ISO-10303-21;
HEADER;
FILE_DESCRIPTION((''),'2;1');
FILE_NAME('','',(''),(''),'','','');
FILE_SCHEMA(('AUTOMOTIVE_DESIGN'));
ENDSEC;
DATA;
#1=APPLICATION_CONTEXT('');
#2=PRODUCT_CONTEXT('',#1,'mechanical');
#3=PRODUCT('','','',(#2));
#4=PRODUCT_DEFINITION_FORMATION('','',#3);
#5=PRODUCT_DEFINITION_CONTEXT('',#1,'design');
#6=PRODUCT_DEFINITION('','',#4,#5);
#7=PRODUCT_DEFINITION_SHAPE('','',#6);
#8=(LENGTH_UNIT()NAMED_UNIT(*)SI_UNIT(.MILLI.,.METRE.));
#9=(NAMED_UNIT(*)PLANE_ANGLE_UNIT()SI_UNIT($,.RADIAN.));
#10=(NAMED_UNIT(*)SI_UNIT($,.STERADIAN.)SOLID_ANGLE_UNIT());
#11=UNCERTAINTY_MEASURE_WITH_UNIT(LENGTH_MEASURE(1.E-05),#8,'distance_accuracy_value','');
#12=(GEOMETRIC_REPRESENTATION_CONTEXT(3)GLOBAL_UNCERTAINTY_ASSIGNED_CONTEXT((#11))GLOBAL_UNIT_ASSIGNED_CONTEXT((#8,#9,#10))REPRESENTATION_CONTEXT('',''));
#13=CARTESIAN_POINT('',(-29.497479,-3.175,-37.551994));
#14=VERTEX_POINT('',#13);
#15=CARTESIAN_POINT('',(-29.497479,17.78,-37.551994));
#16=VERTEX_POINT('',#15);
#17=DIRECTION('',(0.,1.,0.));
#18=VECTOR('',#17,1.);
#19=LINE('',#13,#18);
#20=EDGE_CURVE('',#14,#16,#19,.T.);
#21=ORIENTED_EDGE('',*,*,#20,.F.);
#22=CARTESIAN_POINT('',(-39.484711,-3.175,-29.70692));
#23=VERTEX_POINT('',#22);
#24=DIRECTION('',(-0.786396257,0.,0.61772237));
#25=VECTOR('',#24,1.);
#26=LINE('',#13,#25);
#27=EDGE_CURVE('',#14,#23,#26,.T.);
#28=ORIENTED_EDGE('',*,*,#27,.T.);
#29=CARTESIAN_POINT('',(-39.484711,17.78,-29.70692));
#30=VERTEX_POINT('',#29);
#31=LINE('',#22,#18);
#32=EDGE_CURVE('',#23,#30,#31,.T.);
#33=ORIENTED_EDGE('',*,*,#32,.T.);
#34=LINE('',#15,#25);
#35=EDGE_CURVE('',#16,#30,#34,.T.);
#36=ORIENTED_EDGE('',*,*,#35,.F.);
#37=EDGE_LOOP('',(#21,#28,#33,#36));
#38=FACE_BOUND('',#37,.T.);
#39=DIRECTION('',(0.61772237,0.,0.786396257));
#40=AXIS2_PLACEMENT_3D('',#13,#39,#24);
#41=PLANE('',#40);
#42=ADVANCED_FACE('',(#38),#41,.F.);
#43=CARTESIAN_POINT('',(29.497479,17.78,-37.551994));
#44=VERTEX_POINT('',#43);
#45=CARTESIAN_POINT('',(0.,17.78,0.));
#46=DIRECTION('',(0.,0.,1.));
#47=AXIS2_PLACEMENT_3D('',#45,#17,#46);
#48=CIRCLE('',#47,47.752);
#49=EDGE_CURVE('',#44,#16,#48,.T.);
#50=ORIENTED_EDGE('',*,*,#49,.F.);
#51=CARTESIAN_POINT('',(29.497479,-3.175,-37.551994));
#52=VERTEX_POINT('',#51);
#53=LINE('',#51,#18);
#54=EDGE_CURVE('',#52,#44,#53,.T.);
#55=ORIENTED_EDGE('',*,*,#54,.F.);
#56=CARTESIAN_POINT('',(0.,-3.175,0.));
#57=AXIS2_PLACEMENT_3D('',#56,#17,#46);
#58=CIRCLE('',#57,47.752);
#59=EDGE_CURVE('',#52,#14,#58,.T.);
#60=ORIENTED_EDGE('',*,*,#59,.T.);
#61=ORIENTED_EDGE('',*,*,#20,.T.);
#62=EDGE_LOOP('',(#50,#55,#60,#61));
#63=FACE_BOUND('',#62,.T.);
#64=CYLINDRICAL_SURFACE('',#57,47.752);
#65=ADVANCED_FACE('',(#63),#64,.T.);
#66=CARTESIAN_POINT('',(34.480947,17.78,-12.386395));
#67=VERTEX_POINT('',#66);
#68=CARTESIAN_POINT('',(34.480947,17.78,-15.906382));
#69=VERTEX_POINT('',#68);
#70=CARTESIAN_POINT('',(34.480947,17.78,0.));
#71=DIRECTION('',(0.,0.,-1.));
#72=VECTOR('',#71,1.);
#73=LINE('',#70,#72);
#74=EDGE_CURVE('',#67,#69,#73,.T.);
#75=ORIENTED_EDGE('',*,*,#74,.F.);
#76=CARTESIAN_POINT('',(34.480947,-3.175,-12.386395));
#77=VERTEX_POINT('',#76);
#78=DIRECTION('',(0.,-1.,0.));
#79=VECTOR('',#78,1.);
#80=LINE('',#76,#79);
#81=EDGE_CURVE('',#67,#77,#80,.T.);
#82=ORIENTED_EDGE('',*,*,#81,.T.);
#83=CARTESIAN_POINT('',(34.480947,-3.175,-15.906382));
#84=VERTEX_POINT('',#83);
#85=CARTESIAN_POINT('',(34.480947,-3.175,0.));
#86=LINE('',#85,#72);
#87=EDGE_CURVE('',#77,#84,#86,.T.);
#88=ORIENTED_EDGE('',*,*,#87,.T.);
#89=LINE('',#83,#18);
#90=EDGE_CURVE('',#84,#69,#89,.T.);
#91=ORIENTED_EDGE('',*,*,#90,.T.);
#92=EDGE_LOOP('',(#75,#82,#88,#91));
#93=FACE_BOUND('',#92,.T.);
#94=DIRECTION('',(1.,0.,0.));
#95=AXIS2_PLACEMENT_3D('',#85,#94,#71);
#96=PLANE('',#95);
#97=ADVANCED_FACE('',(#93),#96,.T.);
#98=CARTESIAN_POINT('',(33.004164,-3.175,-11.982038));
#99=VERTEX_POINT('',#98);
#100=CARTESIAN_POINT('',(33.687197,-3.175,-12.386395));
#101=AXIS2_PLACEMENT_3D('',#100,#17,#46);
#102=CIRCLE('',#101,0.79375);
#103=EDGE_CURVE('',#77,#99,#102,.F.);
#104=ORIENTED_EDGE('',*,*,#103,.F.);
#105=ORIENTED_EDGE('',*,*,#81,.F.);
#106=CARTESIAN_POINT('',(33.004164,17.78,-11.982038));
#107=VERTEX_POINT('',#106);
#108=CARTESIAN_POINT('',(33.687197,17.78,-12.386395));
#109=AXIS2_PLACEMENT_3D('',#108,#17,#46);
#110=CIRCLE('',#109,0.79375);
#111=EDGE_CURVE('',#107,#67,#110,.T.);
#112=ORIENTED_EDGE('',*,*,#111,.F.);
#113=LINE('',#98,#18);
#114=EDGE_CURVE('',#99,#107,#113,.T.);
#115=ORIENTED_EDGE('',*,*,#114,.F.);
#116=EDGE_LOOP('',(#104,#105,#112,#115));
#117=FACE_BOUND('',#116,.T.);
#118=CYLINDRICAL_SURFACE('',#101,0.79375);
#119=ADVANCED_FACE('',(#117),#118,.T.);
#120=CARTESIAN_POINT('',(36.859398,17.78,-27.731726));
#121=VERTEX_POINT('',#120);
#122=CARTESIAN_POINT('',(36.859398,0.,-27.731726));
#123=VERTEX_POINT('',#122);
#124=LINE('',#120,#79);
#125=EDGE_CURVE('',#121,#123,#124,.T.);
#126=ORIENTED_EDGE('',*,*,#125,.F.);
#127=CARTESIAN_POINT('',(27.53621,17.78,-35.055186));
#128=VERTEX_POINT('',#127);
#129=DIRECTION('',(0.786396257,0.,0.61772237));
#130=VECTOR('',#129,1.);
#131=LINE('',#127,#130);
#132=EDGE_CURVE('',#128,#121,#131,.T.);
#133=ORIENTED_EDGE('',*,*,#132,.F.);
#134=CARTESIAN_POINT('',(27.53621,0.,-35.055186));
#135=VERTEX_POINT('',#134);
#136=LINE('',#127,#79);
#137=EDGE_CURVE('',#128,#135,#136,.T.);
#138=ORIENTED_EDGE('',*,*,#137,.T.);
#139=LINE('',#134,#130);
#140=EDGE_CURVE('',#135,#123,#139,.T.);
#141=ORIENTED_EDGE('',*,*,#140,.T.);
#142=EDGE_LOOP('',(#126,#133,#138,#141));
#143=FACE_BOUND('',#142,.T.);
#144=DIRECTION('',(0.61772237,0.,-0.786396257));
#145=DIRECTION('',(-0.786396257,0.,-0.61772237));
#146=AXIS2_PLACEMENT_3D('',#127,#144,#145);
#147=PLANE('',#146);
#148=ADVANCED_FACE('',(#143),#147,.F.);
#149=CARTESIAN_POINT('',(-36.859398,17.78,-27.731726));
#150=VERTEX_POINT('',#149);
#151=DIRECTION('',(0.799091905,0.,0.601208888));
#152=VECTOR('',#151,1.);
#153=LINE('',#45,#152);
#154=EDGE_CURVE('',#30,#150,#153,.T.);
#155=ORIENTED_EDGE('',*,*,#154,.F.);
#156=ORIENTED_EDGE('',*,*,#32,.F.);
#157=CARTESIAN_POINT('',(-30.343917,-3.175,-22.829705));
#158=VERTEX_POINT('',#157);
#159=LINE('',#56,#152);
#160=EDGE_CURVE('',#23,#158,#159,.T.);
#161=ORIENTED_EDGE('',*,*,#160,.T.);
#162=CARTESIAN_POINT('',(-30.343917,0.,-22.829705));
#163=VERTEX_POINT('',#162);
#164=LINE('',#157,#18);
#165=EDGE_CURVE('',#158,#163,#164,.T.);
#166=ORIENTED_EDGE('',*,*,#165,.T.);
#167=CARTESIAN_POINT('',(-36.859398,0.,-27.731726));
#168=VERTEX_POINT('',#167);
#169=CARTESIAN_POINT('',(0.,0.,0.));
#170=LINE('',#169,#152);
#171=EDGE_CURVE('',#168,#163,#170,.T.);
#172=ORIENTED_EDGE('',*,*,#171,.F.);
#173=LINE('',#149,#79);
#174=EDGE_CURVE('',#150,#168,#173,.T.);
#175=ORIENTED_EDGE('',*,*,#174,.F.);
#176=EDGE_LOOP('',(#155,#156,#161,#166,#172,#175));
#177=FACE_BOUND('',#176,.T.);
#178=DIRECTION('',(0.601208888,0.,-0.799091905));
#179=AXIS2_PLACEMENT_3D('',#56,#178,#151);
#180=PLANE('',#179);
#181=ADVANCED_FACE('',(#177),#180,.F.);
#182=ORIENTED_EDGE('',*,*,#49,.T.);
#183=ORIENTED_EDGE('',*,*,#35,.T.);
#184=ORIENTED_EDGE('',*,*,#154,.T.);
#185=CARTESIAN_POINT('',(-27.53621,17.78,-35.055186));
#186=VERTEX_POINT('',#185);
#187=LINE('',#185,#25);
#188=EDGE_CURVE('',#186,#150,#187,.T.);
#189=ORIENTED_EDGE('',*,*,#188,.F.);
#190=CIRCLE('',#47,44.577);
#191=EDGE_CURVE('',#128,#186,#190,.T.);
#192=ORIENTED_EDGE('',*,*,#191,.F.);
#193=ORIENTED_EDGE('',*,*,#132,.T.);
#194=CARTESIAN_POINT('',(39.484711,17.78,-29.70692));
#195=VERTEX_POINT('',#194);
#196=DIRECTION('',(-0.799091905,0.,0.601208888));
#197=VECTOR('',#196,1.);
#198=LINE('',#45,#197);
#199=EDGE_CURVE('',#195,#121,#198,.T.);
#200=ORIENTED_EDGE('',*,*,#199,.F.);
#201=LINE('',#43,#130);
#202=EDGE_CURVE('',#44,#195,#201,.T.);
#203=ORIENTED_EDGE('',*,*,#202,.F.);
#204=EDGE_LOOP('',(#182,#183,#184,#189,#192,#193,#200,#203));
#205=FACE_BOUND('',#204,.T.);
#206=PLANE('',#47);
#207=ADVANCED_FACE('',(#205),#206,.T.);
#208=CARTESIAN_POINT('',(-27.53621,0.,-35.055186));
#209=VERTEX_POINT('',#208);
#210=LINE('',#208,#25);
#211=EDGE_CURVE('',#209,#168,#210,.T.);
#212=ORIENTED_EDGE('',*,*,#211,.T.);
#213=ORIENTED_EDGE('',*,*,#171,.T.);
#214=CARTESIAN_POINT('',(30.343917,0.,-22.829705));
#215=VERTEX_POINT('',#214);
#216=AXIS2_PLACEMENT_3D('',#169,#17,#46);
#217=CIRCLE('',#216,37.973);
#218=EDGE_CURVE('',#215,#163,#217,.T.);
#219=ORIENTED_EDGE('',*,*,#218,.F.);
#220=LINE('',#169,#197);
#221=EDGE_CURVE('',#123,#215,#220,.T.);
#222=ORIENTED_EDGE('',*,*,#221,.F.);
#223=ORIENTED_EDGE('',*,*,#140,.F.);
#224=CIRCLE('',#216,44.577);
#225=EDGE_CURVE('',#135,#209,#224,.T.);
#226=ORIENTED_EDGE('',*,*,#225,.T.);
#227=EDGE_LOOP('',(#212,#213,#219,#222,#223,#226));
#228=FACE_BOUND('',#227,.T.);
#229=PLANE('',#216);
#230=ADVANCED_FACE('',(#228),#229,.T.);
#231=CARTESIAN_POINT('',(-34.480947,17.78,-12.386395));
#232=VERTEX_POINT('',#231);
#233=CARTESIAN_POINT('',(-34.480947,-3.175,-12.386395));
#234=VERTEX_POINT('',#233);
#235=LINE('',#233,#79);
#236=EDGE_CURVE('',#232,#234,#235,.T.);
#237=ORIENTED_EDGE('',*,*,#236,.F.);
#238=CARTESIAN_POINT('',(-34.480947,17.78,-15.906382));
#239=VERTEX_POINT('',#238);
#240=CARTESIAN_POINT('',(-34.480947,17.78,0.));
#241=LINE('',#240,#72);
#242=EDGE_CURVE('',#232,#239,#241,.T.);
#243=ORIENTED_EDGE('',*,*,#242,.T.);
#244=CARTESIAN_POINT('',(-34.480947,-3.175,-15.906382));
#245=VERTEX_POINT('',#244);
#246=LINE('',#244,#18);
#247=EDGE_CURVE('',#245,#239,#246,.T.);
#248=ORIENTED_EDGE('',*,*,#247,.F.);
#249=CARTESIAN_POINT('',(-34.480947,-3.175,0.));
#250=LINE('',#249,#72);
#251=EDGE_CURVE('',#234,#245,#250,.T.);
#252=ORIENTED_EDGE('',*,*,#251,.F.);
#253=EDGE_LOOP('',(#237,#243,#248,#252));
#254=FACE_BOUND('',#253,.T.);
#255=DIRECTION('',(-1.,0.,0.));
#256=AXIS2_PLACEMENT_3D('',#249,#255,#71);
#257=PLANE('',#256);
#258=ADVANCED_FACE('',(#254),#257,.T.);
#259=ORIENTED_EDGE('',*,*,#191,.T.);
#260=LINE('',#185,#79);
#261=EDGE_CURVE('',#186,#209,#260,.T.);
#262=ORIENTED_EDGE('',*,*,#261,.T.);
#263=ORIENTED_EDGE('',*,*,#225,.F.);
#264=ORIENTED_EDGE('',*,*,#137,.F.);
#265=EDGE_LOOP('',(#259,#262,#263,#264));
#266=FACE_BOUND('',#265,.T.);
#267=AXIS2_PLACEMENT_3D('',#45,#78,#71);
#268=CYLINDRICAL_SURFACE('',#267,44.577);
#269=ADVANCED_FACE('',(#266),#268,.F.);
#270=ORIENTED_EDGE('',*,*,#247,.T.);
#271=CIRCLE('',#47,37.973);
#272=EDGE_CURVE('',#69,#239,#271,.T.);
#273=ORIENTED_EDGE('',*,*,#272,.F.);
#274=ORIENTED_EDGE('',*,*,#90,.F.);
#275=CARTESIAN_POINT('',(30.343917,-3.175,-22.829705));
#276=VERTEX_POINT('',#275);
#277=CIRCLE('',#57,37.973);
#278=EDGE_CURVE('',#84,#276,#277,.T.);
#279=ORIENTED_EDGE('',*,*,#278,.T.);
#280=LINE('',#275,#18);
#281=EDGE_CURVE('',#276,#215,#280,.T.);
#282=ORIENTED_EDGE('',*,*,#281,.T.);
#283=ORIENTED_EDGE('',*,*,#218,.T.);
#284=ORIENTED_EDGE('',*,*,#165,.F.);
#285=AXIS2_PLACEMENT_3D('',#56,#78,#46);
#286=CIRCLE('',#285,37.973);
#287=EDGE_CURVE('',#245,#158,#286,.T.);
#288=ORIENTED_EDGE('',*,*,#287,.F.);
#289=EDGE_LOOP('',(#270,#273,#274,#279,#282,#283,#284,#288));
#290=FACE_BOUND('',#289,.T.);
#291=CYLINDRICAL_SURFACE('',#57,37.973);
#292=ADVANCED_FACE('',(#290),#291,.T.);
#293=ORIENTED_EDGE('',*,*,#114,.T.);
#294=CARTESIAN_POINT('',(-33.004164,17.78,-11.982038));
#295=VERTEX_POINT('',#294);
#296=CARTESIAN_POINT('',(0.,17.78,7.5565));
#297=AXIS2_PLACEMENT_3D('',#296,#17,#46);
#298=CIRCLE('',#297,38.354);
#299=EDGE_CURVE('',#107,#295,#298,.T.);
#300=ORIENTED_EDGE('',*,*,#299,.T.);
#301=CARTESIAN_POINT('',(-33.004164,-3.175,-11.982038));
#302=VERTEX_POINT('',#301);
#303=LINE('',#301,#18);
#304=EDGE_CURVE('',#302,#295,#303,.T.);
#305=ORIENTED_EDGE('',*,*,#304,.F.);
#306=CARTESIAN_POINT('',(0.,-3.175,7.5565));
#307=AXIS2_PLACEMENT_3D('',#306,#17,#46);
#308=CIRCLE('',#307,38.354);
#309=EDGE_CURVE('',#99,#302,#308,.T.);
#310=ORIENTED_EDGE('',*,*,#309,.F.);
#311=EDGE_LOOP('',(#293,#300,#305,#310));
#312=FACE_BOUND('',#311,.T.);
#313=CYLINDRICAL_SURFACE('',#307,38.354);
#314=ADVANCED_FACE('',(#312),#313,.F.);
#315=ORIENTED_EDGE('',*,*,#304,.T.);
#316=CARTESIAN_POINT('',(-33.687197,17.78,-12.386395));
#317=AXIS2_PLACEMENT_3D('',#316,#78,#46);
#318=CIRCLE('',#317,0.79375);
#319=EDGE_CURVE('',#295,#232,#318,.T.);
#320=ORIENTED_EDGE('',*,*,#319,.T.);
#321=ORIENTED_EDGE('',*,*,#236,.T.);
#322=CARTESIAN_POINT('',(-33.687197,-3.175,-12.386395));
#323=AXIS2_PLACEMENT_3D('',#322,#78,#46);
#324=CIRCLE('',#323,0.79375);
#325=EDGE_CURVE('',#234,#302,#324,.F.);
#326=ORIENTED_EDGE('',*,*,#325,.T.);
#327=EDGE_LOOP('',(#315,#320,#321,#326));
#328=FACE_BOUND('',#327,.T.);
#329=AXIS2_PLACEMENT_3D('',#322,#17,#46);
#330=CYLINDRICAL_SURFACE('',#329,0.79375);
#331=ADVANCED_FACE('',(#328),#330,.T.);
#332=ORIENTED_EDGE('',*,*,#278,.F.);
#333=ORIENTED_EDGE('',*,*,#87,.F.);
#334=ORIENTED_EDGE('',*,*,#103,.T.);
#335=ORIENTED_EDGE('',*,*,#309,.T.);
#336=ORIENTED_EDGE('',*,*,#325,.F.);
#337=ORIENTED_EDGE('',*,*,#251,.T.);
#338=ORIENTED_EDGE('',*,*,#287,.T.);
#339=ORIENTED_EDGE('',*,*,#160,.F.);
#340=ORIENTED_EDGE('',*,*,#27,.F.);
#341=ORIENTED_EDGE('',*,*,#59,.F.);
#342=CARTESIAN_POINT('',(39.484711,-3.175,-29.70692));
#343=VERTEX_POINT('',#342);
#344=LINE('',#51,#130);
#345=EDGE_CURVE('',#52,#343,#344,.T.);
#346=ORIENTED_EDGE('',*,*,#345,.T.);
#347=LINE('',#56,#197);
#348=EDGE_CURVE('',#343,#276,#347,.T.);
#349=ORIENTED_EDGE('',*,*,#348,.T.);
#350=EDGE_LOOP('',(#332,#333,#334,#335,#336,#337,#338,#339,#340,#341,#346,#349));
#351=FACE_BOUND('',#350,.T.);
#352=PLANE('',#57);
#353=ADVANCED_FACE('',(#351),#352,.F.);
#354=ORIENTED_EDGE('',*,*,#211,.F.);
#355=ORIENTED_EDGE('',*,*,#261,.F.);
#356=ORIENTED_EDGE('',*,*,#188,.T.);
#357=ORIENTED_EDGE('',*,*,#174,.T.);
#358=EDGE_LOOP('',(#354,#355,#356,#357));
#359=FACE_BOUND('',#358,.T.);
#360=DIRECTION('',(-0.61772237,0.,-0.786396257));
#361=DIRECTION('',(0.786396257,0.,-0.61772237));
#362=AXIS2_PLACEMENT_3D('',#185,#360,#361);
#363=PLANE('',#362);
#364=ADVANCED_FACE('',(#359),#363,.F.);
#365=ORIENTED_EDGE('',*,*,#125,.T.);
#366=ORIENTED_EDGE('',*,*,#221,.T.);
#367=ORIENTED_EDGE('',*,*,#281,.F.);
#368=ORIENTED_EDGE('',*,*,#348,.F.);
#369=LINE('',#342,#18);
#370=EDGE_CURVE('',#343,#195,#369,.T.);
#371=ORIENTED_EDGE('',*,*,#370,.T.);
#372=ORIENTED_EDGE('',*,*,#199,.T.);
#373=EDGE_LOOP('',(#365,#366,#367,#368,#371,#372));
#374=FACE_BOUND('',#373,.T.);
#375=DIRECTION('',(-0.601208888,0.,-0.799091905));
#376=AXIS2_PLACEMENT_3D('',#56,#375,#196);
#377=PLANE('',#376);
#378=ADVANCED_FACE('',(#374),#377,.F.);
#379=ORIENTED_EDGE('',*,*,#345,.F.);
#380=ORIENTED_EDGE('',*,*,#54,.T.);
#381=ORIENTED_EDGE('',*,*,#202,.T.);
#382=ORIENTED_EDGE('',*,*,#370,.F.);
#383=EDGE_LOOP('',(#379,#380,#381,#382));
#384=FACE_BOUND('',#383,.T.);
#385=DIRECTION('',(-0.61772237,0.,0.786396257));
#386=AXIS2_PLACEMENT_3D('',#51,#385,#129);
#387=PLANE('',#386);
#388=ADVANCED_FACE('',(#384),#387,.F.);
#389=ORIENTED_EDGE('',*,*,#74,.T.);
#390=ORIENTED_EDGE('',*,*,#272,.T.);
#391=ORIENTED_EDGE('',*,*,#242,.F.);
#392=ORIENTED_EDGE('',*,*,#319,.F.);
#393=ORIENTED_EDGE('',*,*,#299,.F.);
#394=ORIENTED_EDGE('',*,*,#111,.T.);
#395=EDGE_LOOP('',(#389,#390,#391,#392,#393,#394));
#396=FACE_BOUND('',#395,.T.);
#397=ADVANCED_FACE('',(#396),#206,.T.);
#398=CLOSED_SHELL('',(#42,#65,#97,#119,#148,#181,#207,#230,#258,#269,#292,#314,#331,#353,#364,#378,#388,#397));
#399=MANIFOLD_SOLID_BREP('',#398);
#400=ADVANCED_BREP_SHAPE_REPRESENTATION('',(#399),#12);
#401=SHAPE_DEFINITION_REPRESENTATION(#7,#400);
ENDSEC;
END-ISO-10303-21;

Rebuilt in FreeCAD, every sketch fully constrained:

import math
import FreeCAD as App
import Part
import Sketcher
from FreeCAD import Vector
Q = App.Units.Quantity


def edges_at(feature, points):
    """Names of the edges that pass closest to the given points."""
    edges = feature.Shape.Edges
    near = lambda p: min(range(len(edges)), key=lambda i: edges[i].distToShape(Part.Vertex(*p))[0])
    return sorted({f"Edge{near(p) + 1}" for p in points})

doc = App.newDocument("Part")
body = doc.addObject("PartDesign::Body", "Body")

# Sketch on XZ plane
sketch1 = body.newObject("Sketcher::SketchObject", "Sketch")
sketch1.AttachmentSupport = (doc.getObject("XZ_Plane"), [""])
sketch1.MapMode = "FlatFace"
sketch1.addGeometry(Part.ArcOfCircle(Part.Circle(Vector(0, 8, 0), Vector(0, 0, 1), 38), math.radians(-90), math.radians(-26)), False)
sketch1.addGeometry(Part.LineSegment(Vector(34, -9, 0), Vector(34, -16, 0)), False)
sketch1.addGeometry(Part.ArcOfCircle(Part.Circle(Vector(0, 0, 0), Vector(0, 0, 1), 38), math.radians(-36.96), math.radians(-24.76)), False)
sketch1.addGeometry(Part.LineSegment(Vector(30, -23, 0), Vector(39, -30, 0)), False)
sketch1.addGeometry(Part.LineSegment(Vector(39, -30, 0), Vector(29, -38, 0)), False)
sketch1.addGeometry(Part.ArcOfCircle(Part.Circle(Vector(0, 0, 0), Vector(0, 0, 1), 48), math.radians(-90), math.radians(-52)), False)
sketch1.addGeometry(Part.LineSegment(Vector(0, -48, 0), Vector(0, -31, 0)), False)
sketch1.addConstraint(Sketcher.Constraint("Coincident", 0, 2, 1, 1))
sketch1.addConstraint(Sketcher.Constraint("Coincident", 1, 2, 2, 2))
sketch1.addConstraint(Sketcher.Constraint("Coincident", 2, 1, 3, 1))
sketch1.addConstraint(Sketcher.Constraint("Coincident", 3, 2, 4, 1))
sketch1.addConstraint(Sketcher.Constraint("Tangent", 4, 2, 5, 2))
sketch1.addConstraint(Sketcher.Constraint("Coincident", 5, 1, 6, 1))
sketch1.addConstraint(Sketcher.Constraint("Coincident", 6, 2, 0, 1))
sketch1.addConstraint(Sketcher.Constraint("Vertical", 1))
sketch1.addConstraint(Sketcher.Constraint("Vertical", 6))
sketch1.addConstraint(Sketcher.Constraint("Coincident", 2, 3, -1, 1))
sketch1.addConstraint(Sketcher.Constraint("Coincident", 5, 3, -1, 1))
sketch1.addConstraint(Sketcher.Constraint("PointOnObject", 0, 3, -2))
sketch1.addConstraint(Sketcher.Constraint("PointOnObject", 5, 1, -2))
sketch1.addConstraint(Sketcher.Constraint("Radius", 0, Q("1.51 in")))
sketch1.addConstraint(Sketcher.Constraint("Radius", 5, Q("1.88 in")))
sketch1.addConstraint(Sketcher.Constraint("Radius", 2, Q("1.495 in")))
sketch1.addConstraint(Sketcher.Constraint("Distance", 4, Q("0.5 in")))
sketch1.addConstraint(Sketcher.Constraint("Angle", 4, Q("-141.85 deg")))
sketch1.addConstraint(Sketcher.Constraint("DistanceY", 6, 1, 6, 2, Q("0.6675 in")))
sketch1.addConstraint(Sketcher.Constraint("DistanceY", 1, 2, 1, 1, Q("6.66724 mm")))
sketch1.addConstraint(Sketcher.Constraint("DistanceX", 2, 1, 1, 2, Q("4.13703 mm")))
pad1 = body.newObject("PartDesign::Pad", "Pad")
pad1.Profile = sketch1
pad1.Length = Q("0.125 in")

# Sketch on XZ plane
sketch2 = body.newObject("Sketcher::SketchObject", "Sketch001")
sketch2.AttachmentSupport = (doc.getObject("XZ_Plane"), [""])
sketch2.MapMode = "FlatFace"
sketch2.AttachmentOffset = App.Placement(Vector(0, 0, -0.7 * 25.4), App.Rotation())
sketch2.addGeometry(Part.LineSegment(Vector(0, -38, 0), Vector(0, -30.8, 0)), False)
sketch2.addGeometry(Part.ArcOfCircle(Part.Circle(Vector(0, 7.6, 0), Vector(0, 0, 1), 38.4), math.radians(-90), math.radians(-26)), False)
sketch2.addGeometry(Part.LineSegment(Vector(34.5, -9.2, 0), Vector(34.5, -15.9, 0)), False)
sketch2.addGeometry(Part.ArcOfCircle(Part.Circle(Vector(0, 0, 0), Vector(0, 0, 1), 38), math.radians(-90), math.radians(-25)), False)
sketch2.addGeometry(Part.LineSegment(Vector(0, -47.8, 0), Vector(0, -44.6, 0)), False)
sketch2.addGeometry(Part.ArcOfCircle(Part.Circle(Vector(0, 0, 0), Vector(0, 0, 1), 44.6), math.radians(-90), math.radians(-52)), False)
sketch2.addGeometry(Part.LineSegment(Vector(27.5, -35.1, 0), Vector(36.9, -27.7, 0)), False)
sketch2.addGeometry(Part.LineSegment(Vector(36.9, -27.7, 0), Vector(39.5, -29.7, 0)), False)
sketch2.addGeometry(Part.LineSegment(Vector(39.5, -29.7, 0), Vector(29.5, -37.6, 0)), False)
sketch2.addGeometry(Part.ArcOfCircle(Part.Circle(Vector(0, 0, 0), Vector(0, 0, 1), 47.8), math.radians(-90), math.radians(-52)), False)
sketch2.addConstraint(Sketcher.Constraint("Coincident", 0, 2, 1, 1))
sketch2.addConstraint(Sketcher.Constraint("Coincident", 1, 2, 2, 1))
sketch2.addConstraint(Sketcher.Constraint("Coincident", 2, 2, 3, 2))
sketch2.addConstraint(Sketcher.Constraint("Coincident", 3, 1, 0, 1))
sketch2.addConstraint(Sketcher.Constraint("Coincident", 4, 2, 5, 1))
sketch2.addConstraint(Sketcher.Constraint("Tangent", 5, 2, 6, 1))
sketch2.addConstraint(Sketcher.Constraint("Coincident", 6, 2, 7, 1))
sketch2.addConstraint(Sketcher.Constraint("Coincident", 7, 2, 8, 1))
sketch2.addConstraint(Sketcher.Constraint("Tangent", 8, 2, 9, 2))
sketch2.addConstraint(Sketcher.Constraint("Coincident", 9, 1, 4, 1))
sketch2.addConstraint(Sketcher.Constraint("Vertical", 0))
sketch2.addConstraint(Sketcher.Constraint("Vertical", 2))
sketch2.addConstraint(Sketcher.Constraint("Vertical", 4))
sketch2.addConstraint(Sketcher.Constraint("Coincident", 3, 3, -1, 1))
sketch2.addConstraint(Sketcher.Constraint("Coincident", 5, 3, -1, 1))
sketch2.addConstraint(Sketcher.Constraint("Coincident", 9, 3, -1, 1))
sketch2.addConstraint(Sketcher.Constraint("PointOnObject", 1, 3, -2))
sketch2.addConstraint(Sketcher.Constraint("PointOnObject", 0, 2, -2))
sketch2.addConstraint(Sketcher.Constraint("PointOnObject", 4, 2, -2))
sketch2.addConstraint(Sketcher.Constraint("Parallel", 6, 8))
sketch2.addConstraint(Sketcher.Constraint("Radius", 1, Q("1.51 in")))
sketch2.addConstraint(Sketcher.Constraint("Radius", 9, Q("1.88 in")))
sketch2.addConstraint(Sketcher.Constraint("Radius", 3, Q("1.495 in")))
sketch2.addConstraint(Sketcher.Constraint("Radius", 5, Q("1.755 in")))
sketch2.addConstraint(Sketcher.Constraint("Distance", 8, Q("0.5 in")))
sketch2.addConstraint(Sketcher.Constraint("Angle", 6, Q("38.15 deg")))
sketch2.addConstraint(Sketcher.Constraint("DistanceY", 0, 1, 0, 2, Q("0.2825 in")))
sketch2.addConstraint(Sketcher.Constraint("DistanceY", 2, 2, 2, 1, Q("6.66724 mm")))
sketch2.addConstraint(Sketcher.Constraint("Distance", 7, Q("3.285371 mm")))
pad2 = body.newObject("PartDesign::Pad", "Pad001")
pad2.Profile = sketch2
pad2.Length = Q("0.7 in")
doc.recompute()

fillet = body.newObject("PartDesign::Fillet", "Fillet")
fillet.Base = (pad2, edges_at(pad2, [(34.481, 7.303, -9.239)]))
fillet.Radius = Q("0.03125 in")
body2 = doc.addObject("PartDesign::Body", "Body001")
doc.recompute()

body2.BaseFeature = body
doc.recompute()

mirroring = doc.addObject("Part::Mirroring", "Mirroring")
mirroring.Source = body
mirroring.Base = Vector(0, -3.175, 0)
mirroring.Normal = Vector(1, 0, 0)
body3 = doc.addObject("PartDesign::Body", "Body002")
body3.BaseFeature = mirroring
boolean = body2.newObject("PartDesign::Boolean", "Boolean")
boolean.Type = "Fuse"
boolean.addObjects([body3])
doc.recompute()
mirroring.Visibility = False

doc.recompute()
